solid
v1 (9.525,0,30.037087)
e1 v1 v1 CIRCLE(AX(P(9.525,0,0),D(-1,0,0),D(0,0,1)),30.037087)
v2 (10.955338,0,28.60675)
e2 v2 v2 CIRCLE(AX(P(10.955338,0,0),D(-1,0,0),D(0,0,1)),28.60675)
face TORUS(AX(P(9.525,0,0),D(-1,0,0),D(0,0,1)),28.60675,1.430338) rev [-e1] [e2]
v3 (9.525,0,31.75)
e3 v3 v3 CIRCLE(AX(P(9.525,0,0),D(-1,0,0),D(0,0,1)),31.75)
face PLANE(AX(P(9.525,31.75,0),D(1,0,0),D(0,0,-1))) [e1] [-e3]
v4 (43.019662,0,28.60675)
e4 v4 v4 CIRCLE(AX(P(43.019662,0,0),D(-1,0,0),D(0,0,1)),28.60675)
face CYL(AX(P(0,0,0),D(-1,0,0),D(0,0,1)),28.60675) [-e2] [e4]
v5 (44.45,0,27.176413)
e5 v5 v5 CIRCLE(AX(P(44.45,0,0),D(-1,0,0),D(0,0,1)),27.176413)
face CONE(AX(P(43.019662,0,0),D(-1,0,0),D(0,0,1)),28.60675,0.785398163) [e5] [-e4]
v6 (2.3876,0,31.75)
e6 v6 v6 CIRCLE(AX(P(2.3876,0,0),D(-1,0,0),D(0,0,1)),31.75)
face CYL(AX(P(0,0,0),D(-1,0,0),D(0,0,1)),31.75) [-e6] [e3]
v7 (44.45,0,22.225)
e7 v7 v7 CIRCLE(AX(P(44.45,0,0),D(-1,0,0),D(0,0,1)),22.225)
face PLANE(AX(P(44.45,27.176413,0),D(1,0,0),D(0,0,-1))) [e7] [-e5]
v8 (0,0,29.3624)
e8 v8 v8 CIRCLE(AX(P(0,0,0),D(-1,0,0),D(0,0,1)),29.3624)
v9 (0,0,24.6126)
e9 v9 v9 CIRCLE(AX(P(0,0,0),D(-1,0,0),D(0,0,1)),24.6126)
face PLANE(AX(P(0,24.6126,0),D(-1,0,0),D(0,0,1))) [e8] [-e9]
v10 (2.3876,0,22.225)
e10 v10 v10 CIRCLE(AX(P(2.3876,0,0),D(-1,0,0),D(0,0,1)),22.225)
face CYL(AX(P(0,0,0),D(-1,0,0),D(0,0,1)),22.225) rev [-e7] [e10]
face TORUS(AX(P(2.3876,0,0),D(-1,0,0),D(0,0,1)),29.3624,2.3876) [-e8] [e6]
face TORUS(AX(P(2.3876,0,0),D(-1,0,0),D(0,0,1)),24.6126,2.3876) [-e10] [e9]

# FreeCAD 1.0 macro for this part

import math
import FreeCAD as App
import Part
import Sketcher

V = App.Vector
Q = App.Units.Quantity

doc = App.newDocument("Part")
body = doc.addObject("PartDesign::Body", "Body")

sketch1 = body.newObject("Sketcher::SketchObject", "Sketch")
sketch1.AttachmentSupport = (doc.getObject("XY_Plane"), [""])
sketch1.MapMode = "FlatFace"
sketch1.addGeometry([
    Part.LineSegment(V(0, 29.4, 0), V(0, 24.6, 0)),
    Part.ArcOfCircle(Part.Circle(V(2.4, 24.6, 0), V(0, 0, 1), 2.4), math.radians(180), math.radians(270)),
    Part.LineSegment(V(2.4, 22.2, 0), V(44.5, 22.2, 0)),
    Part.LineSegment(V(44.5, 22.2, 0), V(44.5, 27.2, 0)),
    Part.LineSegment(V(44.5, 27.2, 0), V(43, 28.6, 0)),
    Part.LineSegment(V(43, 28.6, 0), V(11, 28.6, 0)),
    Part.ArcOfCircle(Part.Circle(V(9.5, 28.6, 0), V(0, 0, 1), 1.4), math.radians(90), math.radians(360)),
    Part.LineSegment(V(9.5, 30, 0), V(9.5, 31.8, 0)),
    Part.LineSegment(V(9.5, 31.8, 0), V(2.4, 31.8, 0)),
    Part.ArcOfCircle(Part.Circle(V(2.4, 29.4, 0), V(0, 0, 1), 2.4), math.radians(90), math.radians(180)),
], False)
sketch1.addConstraint([
    Sketcher.Constraint("Tangent", 0, 2, 1, 1),
    Sketcher.Constraint("Tangent", 1, 2, 2, 1),
    Sketcher.Constraint("Coincident", 2, 2, 3, 1),
    Sketcher.Constraint("Coincident", 3, 2, 4, 1),
    Sketcher.Constraint("Coincident", 4, 2, 5, 1),
    Sketcher.Constraint("Coincident", 5, 2, 6, 2),
    Sketcher.Constraint("Coincident", 6, 1, 7, 1),
    Sketcher.Constraint("Coincident", 7, 2, 8, 1),
    Sketcher.Constraint("Tangent", 8, 2, 9, 1),
    Sketcher.Constraint("Tangent", 9, 2, 0, 1),
    Sketcher.Constraint("Vertical", 0),
    Sketcher.Constraint("Horizontal", 2),
    Sketcher.Constraint("Vertical", 3),
    Sketcher.Constraint("Horizontal", 5),
    Sketcher.Constraint("Vertical", 7),
    Sketcher.Constraint("Horizontal", 8),
    Sketcher.Constraint("Equal", 1, 9),
    Sketcher.Constraint("PointOnObject", 0, 2, -2),
    Sketcher.Constraint("Horizontal", 6, 3, 4, 2),
    Sketcher.Constraint("Angle", 4, Q("135 deg")),
    Sketcher.Constraint("Radius", 1, Q("0.094 in")),
    Sketcher.Constraint("DistanceX", 2, 1, 2, 2, Q("1.656 in")),
    Sketcher.Constraint("DistanceX", 8, 2, 8, 1, Q("0.281 in")),
    Sketcher.Constraint("DistanceY", 0, 2, 0, 1, Q("0.187 in")),
    Sketcher.Constraint("DistanceY", -1, 1, 7, 2, Q("1.25 in")),
    Sketcher.Constraint("DistanceX", -1, 1, 6, 3, Q("0.375 in")),
    Sketcher.Constraint("Radius", 6, 1.430338),
    Sketcher.Constraint("DistanceX", 5, 2, 5, 1, 32.064325),
    Sketcher.Constraint("DistanceY", 3, 1, 3, 2, 4.951412),
])
revolution = body.newObject("PartDesign::Revolution", "Revolution")
revolution.Profile = sketch1
revolution.ReferenceAxis = (sketch1, ["H_Axis"])
revolution.Angle = 360

doc.recompute()
